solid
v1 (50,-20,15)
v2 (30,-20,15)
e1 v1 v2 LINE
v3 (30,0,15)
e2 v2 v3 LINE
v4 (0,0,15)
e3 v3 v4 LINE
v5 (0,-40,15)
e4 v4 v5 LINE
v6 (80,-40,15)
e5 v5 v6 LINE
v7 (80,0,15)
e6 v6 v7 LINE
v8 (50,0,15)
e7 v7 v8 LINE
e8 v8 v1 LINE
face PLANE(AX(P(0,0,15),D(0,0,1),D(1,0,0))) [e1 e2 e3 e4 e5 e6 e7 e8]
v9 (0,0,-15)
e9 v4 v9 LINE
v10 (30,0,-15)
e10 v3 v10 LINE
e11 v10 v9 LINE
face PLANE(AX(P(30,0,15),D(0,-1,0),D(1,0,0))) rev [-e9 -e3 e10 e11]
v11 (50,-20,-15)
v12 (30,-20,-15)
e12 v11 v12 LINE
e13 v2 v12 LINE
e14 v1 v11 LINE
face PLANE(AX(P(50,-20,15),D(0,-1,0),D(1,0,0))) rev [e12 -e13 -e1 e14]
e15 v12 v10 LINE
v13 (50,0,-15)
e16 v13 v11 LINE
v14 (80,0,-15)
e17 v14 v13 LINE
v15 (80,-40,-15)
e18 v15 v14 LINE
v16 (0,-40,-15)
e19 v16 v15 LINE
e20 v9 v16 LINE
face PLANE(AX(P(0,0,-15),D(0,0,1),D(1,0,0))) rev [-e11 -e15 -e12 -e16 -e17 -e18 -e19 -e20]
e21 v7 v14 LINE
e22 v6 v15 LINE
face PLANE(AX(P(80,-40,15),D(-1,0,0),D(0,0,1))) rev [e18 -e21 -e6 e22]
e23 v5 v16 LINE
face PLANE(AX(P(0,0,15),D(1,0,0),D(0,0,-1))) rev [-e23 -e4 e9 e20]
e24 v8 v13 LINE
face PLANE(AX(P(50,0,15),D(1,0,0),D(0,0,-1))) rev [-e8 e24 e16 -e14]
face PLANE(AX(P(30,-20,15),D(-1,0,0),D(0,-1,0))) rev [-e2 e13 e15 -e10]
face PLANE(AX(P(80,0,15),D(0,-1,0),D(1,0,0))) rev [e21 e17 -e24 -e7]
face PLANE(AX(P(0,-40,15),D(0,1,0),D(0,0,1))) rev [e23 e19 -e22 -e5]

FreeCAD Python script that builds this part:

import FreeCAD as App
import Part
import Sketcher

V = App.Vector


def add_polygon(sketch, points):
    """Adds a closed chain of lines whose ends are joined by coincident constraints."""
    first, n = sketch.GeometryCount, len(points)
    for a, b in zip(points, points[1:] + points[:1]):
        sketch.addGeometry(Part.LineSegment(App.Vector(*a, 0), App.Vector(*b, 0)), False)
    for i in range(n):
        sketch.addConstraint(Sketcher.Constraint("Coincident", first + i, 2, first + (i + 1) % n, 1))

doc = App.newDocument("Part")
body = doc.addObject("PartDesign::Body", "Body")

# Sketch on XY plane
sketch1 = body.newObject("Sketcher::SketchObject", "Sketch")
sketch1.AttachmentSupport = (doc.getObject("XY_Plane"), [""])
sketch1.MapMode = "FlatFace"
add_polygon(sketch1, [(0, 0), (0, -40), (80, -40), (80, 0), (50, 0), (50, -20), (30, -20), (30, 0)])  # lines 0-7
sketch1.addConstraint([
    Sketcher.Constraint("Vertical", 0),
    Sketcher.Constraint("Horizontal", 1),
    Sketcher.Constraint("Vertical", 2),
    Sketcher.Constraint("Horizontal", 3),
    Sketcher.Constraint("Vertical", 4),
    Sketcher.Constraint("Horizontal", 5),
    Sketcher.Constraint("Vertical", 6),
    Sketcher.Constraint("Horizontal", 7),
    Sketcher.Constraint("Coincident", 7, 2, -1, 1),
    Sketcher.Constraint("PointOnObject", 2, 2, -1),
    Sketcher.Constraint("Equal", 3, 7),
    Sketcher.Constraint("Equal", 5, 4),
    Sketcher.Constraint("DistanceX", 1, 1, 1, 2, 80.0),
    Sketcher.Constraint("DistanceX", 3, 2, 3, 1, 30.0),
    Sketcher.Constraint("DistanceY", 0, 2, 0, 1, 40.0),
])
pad1 = body.newObject("PartDesign::Pad", "Pad")
pad1.Profile = sketch1
pad1.Length = 30
pad1.Midplane = True

doc.recompute()
